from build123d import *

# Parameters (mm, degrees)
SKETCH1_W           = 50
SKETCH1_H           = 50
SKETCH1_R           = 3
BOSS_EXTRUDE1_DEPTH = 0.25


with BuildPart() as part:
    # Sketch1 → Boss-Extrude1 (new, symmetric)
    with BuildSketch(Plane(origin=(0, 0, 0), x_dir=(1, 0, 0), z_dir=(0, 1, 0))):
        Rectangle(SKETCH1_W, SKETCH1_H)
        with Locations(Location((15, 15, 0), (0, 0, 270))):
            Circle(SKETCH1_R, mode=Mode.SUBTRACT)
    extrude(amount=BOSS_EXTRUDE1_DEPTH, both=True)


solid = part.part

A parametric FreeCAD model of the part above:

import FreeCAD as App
import Part
import Sketcher
from FreeCAD import Vector
Q = App.Units.Quantity


def add_polygon(sketch, points):
    """Adds a closed chain of lines whose ends are joined by coincident constraints."""
    first, n = sketch.GeometryCount, len(points)
    for a, b in zip(points, points[1:] + points[:1]):
        sketch.addGeometry(Part.LineSegment(App.Vector(*a, 0), App.Vector(*b, 0)), False)
    for i in range(n):
        sketch.addConstraint(Sketcher.Constraint("Coincident", first + i, 2, first + (i + 1) % n, 1))

doc = App.newDocument("Part")
body = doc.addObject("PartDesign::Body", "Body")

sketch1 = body.newObject("Sketcher::SketchObject", "Sketch")
sketch1.AttachmentSupport = (doc.getObject("XZ_Plane"), [""])
sketch1.MapMode = "FlatFace"
add_polygon(sketch1, [(-25, -25), (-25, 25), (25, 25), (25, -25)])
sketch1.addGeometry(Part.Circle(Vector(15, -15, 0), Vector(0, 0, 1), 3), False)
sketch1.addConstraint([
    Sketcher.Constraint("Vertical", 0),
    Sketcher.Constraint("Horizontal", 1),
    Sketcher.Constraint("Vertical", 2),
    Sketcher.Constraint("Horizontal", 3),
    Sketcher.Constraint("Symmetric", 0, 2, 2, 2, -1, 1),
    Sketcher.Constraint("Equal", 3, 0),
    Sketcher.Constraint("Diameter", 4, Q("6 mm")),
    Sketcher.Constraint("DistanceX", 1, 1, 1, 2, Q("50 mm")),
    Sketcher.Constraint("DistanceX", -1, 1, 4, 3, Q("15 mm")),
    Sketcher.Constraint("DistanceY", 4, 3, -1, 1, Q("15 mm")),
])
pad1 = body.newObject("PartDesign::Pad", "Pad")
pad1.Profile = sketch1
pad1.Length = 0.5
pad1.Midplane = True

doc.recompute()
